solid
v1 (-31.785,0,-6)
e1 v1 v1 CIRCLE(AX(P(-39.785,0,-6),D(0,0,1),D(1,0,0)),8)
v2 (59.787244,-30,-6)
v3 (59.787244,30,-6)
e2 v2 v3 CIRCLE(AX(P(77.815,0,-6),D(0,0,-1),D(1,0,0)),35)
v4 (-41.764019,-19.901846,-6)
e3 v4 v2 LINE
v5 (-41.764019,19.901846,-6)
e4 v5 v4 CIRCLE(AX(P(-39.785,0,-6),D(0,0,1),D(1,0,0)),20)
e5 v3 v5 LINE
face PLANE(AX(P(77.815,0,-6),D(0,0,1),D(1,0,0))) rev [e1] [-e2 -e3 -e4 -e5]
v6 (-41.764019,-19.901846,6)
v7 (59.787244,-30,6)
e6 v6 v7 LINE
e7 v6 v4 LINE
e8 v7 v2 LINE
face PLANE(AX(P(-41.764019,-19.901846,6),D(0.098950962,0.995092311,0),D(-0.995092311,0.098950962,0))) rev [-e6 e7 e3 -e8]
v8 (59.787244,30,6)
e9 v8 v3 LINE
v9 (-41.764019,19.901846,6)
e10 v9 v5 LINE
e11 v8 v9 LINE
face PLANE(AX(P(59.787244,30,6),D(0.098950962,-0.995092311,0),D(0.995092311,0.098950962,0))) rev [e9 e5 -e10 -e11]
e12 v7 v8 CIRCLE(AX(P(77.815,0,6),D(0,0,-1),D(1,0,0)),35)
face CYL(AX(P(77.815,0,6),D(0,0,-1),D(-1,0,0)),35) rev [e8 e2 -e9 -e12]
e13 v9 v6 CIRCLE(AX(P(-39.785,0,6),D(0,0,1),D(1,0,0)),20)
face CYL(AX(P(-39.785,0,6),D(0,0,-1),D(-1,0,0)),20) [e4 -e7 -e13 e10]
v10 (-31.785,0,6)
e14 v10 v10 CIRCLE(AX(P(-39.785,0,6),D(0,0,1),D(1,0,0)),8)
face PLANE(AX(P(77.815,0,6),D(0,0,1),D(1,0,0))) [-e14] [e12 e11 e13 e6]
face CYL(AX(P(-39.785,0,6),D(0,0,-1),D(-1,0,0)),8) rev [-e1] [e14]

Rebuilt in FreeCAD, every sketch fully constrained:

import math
import FreeCAD as App
import Part
import Sketcher

V = App.Vector
Q = App.Units.Quantity

doc = App.newDocument("Part")
params = doc.addObject("Spreadsheet::Sheet", "Params")
for row, (alias, value) in enumerate([
    ("sketch1_diameter", "16 mm"),
    ("sketch1_radius", "20 mm"),
    ("sketch1_radius2", "35 mm"),
    ("pad1_length", "12 mm"),
], start=1):
    params.set(f"A{row}", alias)
    params.set(f"B{row}", "=" + value)
    params.setAlias(f"B{row}", alias)

body = doc.addObject("PartDesign::Body", "Body")

sketch1 = body.newObject("Sketcher::SketchObject", "Sketch")
sketch1.AttachmentSupport = (doc.getObject("XY_Plane"), [""])
sketch1.MapMode = "FlatFace"
sketch1.addGeometry([
    Part.LineSegment(V(60, 30, 0), V(-42, 20, 0)),
    Part.ArcOfCircle(Part.Circle(V(-40, 0, 0), V(0, 0, 1), 20), math.radians(96), math.radians(264)),
    Part.LineSegment(V(-42, -20, 0), V(60, -30, 0)),
    Part.ArcOfCircle(Part.Circle(V(78, 0, 0), V(0, 0, 1), 35), math.radians(121), math.radians(239)),
    Part.Circle(V(-40, 0, 0), V(0, 0, 1), 8),
], False)
sketch1.addConstraint([
    Sketcher.Constraint("Tangent", 0, 2, 1, 1),
    Sketcher.Constraint("Tangent", 1, 2, 2, 1),
    Sketcher.Constraint("Coincident", 2, 2, 3, 2),
    Sketcher.Constraint("Coincident", 3, 1, 0, 1),
    Sketcher.Constraint("Coincident", 4, 3, 1, 3),
    Sketcher.Constraint("Symmetric", 0, 2, 1, 2, -1),
    Sketcher.Constraint("PointOnObject", 3, 3, -1),
    Sketcher.Constraint("Diameter", 4, Q("16 mm")),
    Sketcher.Constraint("Radius", 1, Q("20 mm")),
    Sketcher.Constraint("Radius", 3, Q("35 mm")),
    Sketcher.Constraint("DistanceY", 2, 2, -1, 1, Q("30 mm")),
    Sketcher.Constraint("DistanceX", 1, 3, 3, 3, Q("117.6 mm")),
    Sketcher.Constraint("DistanceX", 1, 3, -1, 1, Q("39.785 mm")),
])
sketch1.setExpression("Constraints[7]", "Params.sketch1_diameter")
sketch1.setExpression("Constraints[8]", "Params.sketch1_radius")
sketch1.setExpression("Constraints[9]", "Params.sketch1_radius2")
pad1 = body.newObject("PartDesign::Pad", "Pad")
pad1.Profile = sketch1
pad1.setExpression("Length", "Params.pad1_length")
pad1.Midplane = True

doc.recompute()
